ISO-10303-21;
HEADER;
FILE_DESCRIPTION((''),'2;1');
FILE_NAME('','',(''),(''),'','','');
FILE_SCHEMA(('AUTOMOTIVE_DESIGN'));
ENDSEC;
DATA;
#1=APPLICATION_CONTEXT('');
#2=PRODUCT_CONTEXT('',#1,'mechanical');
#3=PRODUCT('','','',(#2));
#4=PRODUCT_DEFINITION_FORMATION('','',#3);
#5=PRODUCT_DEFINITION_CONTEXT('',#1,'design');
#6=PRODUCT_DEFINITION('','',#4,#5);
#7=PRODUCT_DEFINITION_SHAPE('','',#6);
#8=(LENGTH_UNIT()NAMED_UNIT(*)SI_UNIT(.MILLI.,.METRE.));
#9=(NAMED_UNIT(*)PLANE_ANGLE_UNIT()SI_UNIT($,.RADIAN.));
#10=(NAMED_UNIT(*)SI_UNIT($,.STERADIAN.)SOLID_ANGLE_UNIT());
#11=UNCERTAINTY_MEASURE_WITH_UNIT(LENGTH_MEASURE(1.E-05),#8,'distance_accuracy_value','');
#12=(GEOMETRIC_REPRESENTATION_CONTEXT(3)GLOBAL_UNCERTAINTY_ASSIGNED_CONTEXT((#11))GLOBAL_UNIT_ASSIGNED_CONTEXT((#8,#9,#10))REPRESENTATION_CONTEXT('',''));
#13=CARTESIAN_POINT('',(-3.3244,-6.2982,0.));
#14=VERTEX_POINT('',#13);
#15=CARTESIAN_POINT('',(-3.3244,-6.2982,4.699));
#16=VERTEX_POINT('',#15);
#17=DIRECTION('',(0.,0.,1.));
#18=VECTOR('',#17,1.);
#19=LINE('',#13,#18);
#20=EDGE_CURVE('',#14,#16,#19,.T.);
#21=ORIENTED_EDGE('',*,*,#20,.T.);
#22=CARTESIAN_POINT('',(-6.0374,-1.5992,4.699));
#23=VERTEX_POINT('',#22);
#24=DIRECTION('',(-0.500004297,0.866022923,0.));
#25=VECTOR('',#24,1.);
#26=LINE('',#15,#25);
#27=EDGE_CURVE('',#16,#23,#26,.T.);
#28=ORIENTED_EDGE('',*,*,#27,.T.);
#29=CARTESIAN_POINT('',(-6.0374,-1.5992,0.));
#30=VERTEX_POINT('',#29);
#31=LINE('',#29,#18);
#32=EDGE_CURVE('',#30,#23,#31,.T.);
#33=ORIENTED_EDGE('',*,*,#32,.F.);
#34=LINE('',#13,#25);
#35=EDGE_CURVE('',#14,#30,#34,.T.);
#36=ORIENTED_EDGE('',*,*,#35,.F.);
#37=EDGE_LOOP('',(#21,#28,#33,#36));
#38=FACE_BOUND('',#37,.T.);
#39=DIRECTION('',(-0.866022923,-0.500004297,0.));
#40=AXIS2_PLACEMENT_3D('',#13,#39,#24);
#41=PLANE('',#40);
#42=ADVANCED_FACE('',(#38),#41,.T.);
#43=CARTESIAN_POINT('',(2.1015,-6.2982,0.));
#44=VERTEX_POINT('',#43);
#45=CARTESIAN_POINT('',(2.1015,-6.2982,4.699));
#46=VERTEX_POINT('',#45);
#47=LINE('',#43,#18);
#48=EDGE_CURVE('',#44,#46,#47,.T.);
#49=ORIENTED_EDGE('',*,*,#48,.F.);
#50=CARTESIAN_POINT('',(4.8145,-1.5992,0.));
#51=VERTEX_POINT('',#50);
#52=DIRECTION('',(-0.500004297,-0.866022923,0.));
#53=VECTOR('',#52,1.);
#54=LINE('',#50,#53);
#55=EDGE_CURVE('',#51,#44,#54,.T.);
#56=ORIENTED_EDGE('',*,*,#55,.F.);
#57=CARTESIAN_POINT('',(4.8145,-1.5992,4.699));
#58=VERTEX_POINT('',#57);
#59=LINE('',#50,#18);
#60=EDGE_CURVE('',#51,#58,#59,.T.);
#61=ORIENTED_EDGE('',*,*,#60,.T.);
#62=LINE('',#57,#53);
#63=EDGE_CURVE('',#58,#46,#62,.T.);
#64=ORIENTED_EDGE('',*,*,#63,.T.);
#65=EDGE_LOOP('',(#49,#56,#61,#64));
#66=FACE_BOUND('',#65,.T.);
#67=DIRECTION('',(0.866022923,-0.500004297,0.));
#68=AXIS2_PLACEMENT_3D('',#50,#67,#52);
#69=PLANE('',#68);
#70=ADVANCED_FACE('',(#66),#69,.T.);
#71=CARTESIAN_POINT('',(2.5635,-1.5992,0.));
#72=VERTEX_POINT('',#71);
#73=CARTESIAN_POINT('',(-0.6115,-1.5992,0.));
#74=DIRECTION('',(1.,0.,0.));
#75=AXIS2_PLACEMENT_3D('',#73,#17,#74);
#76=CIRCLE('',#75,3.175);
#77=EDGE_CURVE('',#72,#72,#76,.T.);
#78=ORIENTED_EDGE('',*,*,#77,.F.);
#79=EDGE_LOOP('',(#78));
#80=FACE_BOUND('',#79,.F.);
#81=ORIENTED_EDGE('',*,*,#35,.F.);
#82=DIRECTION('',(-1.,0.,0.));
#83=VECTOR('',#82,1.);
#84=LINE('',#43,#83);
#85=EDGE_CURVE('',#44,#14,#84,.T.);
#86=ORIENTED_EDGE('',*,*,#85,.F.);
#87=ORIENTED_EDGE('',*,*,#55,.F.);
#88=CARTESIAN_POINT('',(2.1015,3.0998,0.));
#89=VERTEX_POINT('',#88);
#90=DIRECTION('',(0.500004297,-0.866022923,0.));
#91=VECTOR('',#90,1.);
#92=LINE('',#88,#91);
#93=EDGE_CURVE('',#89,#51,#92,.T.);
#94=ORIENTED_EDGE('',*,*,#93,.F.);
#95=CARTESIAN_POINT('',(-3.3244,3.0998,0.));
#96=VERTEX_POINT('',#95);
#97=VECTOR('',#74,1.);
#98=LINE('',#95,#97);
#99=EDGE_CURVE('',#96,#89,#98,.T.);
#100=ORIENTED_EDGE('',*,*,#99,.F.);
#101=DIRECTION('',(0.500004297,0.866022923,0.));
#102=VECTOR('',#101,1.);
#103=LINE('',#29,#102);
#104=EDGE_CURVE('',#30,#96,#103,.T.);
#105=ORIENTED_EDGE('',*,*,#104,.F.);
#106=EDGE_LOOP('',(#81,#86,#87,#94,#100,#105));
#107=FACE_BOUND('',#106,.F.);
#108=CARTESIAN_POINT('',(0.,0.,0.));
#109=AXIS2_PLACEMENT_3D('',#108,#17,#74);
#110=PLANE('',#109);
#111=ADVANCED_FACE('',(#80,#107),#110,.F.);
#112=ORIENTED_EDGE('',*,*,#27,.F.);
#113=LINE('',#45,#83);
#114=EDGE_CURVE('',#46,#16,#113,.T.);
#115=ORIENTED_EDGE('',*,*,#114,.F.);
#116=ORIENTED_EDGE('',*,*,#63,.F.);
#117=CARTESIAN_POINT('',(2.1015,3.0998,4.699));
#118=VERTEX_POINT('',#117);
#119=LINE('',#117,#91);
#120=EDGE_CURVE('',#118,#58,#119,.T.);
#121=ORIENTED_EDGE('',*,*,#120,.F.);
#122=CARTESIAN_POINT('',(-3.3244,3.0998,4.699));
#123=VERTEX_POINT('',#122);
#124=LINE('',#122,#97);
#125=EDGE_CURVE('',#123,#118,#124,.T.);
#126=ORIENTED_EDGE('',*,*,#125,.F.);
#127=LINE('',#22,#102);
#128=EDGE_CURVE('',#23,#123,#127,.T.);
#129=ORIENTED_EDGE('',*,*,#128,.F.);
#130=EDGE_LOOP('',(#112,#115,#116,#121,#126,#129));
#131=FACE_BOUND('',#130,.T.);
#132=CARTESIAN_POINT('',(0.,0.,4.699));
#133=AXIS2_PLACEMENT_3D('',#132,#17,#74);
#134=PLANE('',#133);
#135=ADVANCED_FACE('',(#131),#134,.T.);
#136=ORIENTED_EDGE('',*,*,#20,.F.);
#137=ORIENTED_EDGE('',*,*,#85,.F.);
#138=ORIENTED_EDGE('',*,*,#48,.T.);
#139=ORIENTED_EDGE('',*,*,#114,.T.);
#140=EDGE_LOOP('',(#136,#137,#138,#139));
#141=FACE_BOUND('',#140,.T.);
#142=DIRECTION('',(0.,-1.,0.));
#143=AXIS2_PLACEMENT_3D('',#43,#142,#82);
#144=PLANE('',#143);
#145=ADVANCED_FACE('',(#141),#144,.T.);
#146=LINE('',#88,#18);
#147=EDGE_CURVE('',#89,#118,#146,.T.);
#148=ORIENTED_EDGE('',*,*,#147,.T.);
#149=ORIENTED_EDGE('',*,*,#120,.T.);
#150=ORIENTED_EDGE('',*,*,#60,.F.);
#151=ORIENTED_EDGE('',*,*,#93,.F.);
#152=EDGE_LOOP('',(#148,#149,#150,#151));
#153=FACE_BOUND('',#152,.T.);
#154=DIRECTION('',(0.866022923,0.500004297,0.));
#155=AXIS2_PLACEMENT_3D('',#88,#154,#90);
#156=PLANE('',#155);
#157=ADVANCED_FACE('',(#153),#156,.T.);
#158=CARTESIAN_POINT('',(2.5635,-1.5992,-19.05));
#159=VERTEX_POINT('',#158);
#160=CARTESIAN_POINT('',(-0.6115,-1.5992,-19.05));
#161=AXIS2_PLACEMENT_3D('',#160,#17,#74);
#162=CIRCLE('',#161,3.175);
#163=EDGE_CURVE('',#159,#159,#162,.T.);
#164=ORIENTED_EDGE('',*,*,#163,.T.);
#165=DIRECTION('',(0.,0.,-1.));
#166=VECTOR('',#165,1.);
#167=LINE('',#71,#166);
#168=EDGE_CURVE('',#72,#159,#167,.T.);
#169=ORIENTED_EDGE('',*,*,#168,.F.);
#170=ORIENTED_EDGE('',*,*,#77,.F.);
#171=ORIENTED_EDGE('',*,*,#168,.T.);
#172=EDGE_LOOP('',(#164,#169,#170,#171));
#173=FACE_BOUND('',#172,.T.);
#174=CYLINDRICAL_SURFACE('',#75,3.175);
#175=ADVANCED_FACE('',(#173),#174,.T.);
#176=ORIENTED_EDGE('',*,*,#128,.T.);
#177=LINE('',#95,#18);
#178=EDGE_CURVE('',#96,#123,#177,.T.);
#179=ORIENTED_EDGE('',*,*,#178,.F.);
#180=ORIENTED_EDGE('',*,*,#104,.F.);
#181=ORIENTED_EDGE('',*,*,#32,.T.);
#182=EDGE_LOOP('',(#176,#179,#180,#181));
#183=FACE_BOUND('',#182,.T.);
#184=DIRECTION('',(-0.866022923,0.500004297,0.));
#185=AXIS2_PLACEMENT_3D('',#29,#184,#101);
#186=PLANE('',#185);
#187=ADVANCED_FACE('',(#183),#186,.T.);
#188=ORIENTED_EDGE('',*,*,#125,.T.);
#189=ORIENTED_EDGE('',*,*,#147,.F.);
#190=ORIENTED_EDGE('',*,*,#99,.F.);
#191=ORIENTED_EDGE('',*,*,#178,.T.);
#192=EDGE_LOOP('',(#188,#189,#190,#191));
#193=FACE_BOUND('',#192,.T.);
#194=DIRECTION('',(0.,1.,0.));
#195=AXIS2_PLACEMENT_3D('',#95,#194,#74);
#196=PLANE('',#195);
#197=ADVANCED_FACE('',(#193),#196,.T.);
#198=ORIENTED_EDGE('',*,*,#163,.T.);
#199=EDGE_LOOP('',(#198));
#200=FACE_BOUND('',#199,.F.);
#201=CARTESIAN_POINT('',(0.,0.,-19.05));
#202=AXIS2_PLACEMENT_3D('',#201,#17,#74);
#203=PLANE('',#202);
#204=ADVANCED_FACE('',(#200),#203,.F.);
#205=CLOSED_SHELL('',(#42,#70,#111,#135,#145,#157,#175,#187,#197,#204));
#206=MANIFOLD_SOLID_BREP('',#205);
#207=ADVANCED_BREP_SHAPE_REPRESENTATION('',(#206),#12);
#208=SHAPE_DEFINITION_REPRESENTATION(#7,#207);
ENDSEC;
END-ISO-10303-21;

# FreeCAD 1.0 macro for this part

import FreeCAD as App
import Part
import Sketcher

V = App.Vector
Q = App.Units.Quantity

doc = App.newDocument("Part")
body = doc.addObject("PartDesign::Body", "Body")

sketch1 = body.newObject("Sketcher::SketchObject", "Sketch")
sketch1.AttachmentSupport = (doc.getObject("XY_Plane"), [""])
sketch1.MapMode = "FlatFace"
sketch1.addGeometry(Part.Circle(V(-0.6, -1.6, 0), V(0, 0, 1), 3.2), False)
sketch1.addConstraint(Sketcher.Constraint("Diameter", 0, Q("0.25 in")))
sketch1.addConstraint(Sketcher.Constraint("DistanceX", 0, 3, -1, 1, Q("0.6115 mm")))
sketch1.addConstraint(Sketcher.Constraint("DistanceY", 0, 3, -1, 1, Q("1.5992 mm")))
pad1 = body.newObject("PartDesign::Pad", "Pad")
pad1.Profile = sketch1
pad1.Length = Q("0.75 in")
pad1.Reversed = True

sketch2 = body.newObject("Sketcher::SketchObject", "Sketch001")
sketch2.AttachmentSupport = (doc.getObject("XY_Plane"), [""])
sketch2.MapMode = "FlatFace"
sketch2.addGeometry(Part.LineSegment(V(-3, 3, 0), V(-6, -2, 0)), False)
sketch2.addGeometry(Part.LineSegment(V(-6, -2, 0), V(-3, -6, 0)), False)
sketch2.addGeometry(Part.LineSegment(V(-3, -6, 0), V(2, -6, 0)), False)
sketch2.addGeometry(Part.LineSegment(V(2, -6, 0), V(5, -2, 0)), False)
sketch2.addGeometry(Part.LineSegment(V(5, -2, 0), V(2, 3, 0)), False)
sketch2.addGeometry(Part.LineSegment(V(2, 3, 0), V(-3, 3, 0)), False)
sketch2.addConstraint(Sketcher.Constraint("Coincident", 0, 2, 1, 1))
sketch2.addConstraint(Sketcher.Constraint("Coincident", 1, 2, 2, 1))
sketch2.addConstraint(Sketcher.Constraint("Coincident", 2, 2, 3, 1))
sketch2.addConstraint(Sketcher.Constraint("Coincident", 3, 2, 4, 1))
sketch2.addConstraint(Sketcher.Constraint("Coincident", 4, 2, 5, 1))
sketch2.addConstraint(Sketcher.Constraint("Coincident", 5, 2, 0, 1))
sketch2.addConstraint(Sketcher.Constraint("Horizontal", 2))
sketch2.addConstraint(Sketcher.Constraint("Horizontal", 5))
sketch2.addConstraint(Sketcher.Constraint("Parallel", 0, 3))
sketch2.addConstraint(Sketcher.Constraint("Parallel", 1, 4))
sketch2.addConstraint(Sketcher.Constraint("Horizontal", 0, 2, 3, 2))
sketch2.addConstraint(Sketcher.Constraint("Vertical", 2, 2, 4, 2))
sketch2.addConstraint(Sketcher.Constraint("Vertical", 1, 2, 5, 2))
sketch2.addConstraint(Sketcher.Constraint("DistanceY", 2, 2, 4, 2, Q("0.37 in")))
sketch2.addConstraint(Sketcher.Constraint("Angle", 0, Q("-120.0003 deg")))
sketch2.addConstraint(Sketcher.Constraint("DistanceX", 2, 1, 2, 2, Q("5.426 mm")))
sketch2.addConstraint(Sketcher.Constraint("DistanceX", 0, 2, -1, 1, Q("0.2377 in")))
sketch2.addConstraint(Sketcher.Constraint("DistanceY", 0, 2, -1, 1, Q("1.5992 mm")))
pad2 = body.newObject("PartDesign::Pad", "Pad001")
pad2.Profile = sketch2
pad2.Length = Q("0.185 in")

doc.recompute()
